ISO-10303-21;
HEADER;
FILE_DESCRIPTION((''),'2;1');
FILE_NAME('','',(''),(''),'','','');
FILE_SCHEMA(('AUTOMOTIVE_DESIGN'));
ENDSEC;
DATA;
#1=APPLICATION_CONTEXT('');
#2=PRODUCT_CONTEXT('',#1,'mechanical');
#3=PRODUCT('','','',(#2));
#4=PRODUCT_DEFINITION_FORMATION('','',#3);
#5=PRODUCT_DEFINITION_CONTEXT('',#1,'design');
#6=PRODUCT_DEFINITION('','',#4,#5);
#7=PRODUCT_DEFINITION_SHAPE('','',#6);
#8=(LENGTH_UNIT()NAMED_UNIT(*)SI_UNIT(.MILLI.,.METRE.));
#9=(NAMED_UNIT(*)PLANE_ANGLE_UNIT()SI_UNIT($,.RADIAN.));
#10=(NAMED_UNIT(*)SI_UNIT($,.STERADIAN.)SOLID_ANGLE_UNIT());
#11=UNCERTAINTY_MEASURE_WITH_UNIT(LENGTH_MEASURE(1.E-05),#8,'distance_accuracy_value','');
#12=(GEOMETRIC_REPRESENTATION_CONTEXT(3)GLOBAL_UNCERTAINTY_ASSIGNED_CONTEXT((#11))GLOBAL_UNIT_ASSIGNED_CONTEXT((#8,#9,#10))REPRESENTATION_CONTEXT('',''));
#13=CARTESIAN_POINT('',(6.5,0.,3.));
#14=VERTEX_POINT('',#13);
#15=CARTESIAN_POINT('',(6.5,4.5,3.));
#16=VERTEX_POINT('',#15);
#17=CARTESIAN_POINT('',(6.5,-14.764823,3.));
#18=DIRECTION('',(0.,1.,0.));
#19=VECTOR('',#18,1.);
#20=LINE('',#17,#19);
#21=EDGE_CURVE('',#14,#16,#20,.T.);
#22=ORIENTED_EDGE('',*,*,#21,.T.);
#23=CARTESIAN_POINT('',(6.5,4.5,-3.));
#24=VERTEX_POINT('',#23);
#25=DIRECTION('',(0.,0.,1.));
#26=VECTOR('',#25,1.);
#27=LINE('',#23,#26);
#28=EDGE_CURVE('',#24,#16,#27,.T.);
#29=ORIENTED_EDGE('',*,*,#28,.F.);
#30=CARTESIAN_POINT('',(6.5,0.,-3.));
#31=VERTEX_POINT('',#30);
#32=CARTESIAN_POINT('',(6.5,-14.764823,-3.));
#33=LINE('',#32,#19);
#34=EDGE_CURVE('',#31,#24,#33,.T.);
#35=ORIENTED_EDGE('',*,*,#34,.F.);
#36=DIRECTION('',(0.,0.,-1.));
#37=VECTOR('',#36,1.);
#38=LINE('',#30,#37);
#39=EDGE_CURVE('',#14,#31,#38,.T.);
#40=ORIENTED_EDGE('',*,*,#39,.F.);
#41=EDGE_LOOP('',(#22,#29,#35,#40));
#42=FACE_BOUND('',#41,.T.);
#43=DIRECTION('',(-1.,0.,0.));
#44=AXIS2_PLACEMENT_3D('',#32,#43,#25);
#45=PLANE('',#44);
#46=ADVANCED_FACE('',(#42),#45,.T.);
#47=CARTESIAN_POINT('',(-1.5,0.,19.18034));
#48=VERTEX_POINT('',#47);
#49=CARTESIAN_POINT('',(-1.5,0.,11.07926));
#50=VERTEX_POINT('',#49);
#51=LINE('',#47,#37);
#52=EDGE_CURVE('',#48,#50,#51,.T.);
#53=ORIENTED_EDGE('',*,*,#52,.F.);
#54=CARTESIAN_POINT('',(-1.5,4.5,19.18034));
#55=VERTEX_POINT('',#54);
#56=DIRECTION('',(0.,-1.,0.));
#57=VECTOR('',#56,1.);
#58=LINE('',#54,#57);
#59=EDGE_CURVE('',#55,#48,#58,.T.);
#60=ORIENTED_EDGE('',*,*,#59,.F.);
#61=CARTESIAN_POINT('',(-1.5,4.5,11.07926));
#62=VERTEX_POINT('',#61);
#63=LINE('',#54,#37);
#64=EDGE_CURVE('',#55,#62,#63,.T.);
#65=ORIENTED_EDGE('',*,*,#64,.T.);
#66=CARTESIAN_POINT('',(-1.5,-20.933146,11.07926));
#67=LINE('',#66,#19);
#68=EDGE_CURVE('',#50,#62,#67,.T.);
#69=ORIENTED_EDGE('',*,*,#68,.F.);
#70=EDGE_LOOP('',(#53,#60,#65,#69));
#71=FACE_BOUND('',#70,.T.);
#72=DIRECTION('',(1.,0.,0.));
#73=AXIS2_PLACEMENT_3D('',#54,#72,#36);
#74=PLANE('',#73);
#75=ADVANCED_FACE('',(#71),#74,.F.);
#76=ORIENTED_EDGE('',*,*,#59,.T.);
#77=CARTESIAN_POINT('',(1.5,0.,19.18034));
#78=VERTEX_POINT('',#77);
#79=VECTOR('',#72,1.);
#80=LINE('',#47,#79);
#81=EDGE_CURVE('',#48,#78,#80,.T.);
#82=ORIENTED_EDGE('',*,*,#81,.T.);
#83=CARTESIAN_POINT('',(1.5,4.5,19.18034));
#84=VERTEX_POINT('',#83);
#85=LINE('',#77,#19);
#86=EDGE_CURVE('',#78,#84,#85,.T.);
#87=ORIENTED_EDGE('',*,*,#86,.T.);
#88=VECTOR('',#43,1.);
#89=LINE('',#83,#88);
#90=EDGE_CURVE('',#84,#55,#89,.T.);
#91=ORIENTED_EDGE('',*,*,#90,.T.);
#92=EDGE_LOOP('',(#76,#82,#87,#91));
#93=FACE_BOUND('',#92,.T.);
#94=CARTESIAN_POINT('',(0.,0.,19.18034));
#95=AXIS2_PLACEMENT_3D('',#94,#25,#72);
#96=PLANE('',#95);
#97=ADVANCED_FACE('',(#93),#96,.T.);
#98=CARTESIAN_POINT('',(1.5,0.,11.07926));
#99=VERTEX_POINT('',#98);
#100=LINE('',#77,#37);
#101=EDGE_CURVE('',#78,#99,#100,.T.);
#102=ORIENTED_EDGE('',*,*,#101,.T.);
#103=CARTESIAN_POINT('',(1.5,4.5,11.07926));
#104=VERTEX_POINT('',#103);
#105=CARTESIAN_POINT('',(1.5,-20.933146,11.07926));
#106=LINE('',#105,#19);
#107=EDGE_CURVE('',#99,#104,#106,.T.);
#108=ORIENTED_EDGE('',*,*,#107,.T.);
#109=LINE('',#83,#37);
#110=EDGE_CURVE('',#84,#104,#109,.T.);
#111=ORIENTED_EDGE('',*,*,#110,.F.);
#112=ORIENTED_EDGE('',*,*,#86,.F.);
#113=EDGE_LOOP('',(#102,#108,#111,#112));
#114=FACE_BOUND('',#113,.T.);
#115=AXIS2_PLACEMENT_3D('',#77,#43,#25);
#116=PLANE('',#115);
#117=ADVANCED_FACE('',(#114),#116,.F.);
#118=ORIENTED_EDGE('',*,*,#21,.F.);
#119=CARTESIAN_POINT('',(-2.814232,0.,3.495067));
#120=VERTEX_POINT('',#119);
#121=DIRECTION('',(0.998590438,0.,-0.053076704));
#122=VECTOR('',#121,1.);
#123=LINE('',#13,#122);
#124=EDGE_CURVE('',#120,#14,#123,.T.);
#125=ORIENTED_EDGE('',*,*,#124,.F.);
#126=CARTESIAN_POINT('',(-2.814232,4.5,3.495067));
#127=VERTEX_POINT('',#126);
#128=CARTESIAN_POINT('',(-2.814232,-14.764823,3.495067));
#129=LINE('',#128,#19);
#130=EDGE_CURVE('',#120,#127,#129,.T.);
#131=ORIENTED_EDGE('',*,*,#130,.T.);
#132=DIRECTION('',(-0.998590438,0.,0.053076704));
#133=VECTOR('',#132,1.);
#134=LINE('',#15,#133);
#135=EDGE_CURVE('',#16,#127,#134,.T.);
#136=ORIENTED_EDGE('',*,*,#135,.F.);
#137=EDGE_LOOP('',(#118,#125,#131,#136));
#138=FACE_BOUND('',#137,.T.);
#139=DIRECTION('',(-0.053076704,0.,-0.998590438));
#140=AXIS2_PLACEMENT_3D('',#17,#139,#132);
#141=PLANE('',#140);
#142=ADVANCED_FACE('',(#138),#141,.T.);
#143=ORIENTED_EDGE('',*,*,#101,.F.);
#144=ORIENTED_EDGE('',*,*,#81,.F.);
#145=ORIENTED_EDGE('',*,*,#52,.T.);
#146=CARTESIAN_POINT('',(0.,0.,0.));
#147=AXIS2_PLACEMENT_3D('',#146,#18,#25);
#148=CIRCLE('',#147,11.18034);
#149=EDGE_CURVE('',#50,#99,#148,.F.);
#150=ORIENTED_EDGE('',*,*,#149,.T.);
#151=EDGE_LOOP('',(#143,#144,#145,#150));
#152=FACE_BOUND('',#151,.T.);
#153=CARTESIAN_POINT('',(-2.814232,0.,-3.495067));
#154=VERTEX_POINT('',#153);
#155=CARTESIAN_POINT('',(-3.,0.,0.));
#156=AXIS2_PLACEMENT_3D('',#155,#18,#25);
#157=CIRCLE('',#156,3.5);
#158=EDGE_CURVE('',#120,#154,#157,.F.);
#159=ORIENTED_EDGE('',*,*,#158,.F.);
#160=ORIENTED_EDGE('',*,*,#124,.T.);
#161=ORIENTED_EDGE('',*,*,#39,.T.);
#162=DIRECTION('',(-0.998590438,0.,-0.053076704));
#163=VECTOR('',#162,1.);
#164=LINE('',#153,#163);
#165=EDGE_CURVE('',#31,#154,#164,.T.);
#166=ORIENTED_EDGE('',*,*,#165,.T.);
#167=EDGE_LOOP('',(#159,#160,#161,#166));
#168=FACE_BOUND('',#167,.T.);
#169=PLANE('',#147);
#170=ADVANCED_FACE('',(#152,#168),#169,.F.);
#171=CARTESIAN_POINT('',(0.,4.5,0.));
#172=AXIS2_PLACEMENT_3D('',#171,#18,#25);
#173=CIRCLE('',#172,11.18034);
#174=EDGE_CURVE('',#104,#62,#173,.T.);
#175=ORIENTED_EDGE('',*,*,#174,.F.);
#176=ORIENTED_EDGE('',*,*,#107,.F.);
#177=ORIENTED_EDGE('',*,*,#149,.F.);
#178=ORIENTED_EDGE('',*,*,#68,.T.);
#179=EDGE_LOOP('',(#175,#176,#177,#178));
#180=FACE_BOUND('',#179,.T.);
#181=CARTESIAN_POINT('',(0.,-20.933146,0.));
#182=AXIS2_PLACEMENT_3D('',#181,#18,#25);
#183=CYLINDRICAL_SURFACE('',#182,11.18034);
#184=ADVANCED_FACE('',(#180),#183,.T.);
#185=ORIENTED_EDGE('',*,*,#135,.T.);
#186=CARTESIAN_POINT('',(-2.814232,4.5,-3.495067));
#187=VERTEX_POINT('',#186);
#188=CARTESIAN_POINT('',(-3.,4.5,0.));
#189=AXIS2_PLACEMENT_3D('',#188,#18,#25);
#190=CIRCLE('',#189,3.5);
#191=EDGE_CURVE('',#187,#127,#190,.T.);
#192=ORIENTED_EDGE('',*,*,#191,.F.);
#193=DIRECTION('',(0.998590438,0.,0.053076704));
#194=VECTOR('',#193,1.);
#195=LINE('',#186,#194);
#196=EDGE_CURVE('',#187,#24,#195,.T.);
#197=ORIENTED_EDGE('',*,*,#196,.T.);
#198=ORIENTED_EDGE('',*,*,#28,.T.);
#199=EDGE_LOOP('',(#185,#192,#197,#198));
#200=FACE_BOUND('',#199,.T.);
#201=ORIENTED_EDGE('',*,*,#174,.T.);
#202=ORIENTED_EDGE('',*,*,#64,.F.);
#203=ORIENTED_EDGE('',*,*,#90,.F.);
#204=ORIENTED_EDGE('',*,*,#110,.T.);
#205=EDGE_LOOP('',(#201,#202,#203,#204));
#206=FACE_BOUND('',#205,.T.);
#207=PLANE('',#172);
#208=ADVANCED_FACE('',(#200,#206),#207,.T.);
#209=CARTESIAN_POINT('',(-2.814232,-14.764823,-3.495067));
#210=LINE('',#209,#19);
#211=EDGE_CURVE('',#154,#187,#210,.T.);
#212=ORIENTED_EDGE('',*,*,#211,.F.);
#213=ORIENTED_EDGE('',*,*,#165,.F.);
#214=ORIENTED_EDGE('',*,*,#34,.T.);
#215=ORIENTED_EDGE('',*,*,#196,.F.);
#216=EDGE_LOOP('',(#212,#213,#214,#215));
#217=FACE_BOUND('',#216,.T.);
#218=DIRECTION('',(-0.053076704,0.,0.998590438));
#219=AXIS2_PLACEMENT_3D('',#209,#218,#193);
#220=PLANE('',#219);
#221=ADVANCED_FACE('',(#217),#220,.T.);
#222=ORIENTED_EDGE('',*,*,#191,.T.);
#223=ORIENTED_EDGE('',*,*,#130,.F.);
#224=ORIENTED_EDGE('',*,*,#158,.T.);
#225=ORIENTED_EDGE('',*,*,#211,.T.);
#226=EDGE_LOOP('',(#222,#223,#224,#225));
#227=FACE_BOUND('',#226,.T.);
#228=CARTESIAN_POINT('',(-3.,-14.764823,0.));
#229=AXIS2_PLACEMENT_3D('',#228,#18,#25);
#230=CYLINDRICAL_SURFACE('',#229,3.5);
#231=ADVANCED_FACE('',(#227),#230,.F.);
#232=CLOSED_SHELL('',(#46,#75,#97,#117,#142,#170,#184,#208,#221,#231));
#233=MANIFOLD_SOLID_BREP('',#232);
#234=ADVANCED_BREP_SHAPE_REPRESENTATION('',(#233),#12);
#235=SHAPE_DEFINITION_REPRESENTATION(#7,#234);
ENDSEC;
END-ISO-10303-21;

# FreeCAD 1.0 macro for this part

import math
import FreeCAD as App
import Part
import Sketcher
from FreeCAD import Vector

doc = App.newDocument("Part")
body = doc.addObject("PartDesign::Body", "Body")

# Sketch on XZ plane
sketch1 = body.newObject("Sketcher::SketchObject", "Sketch")
sketch1.AttachmentSupport = (doc.getObject("XZ_Plane"), [""])
sketch1.MapMode = "FlatFace"
sketch1.addGeometry(Part.LineSegment(Vector(-10, -5, 0), Vector(-10, 5, 0)), False)
sketch1.addGeometry(Part.LineSegment(Vector(-10, 5, 0), Vector(10, 5, 0)), False)
sketch1.addGeometry(Part.LineSegment(Vector(10, 5, 0), Vector(10, -5, 0)), False)
sketch1.addGeometry(Part.LineSegment(Vector(10, -5, 0), Vector(-10, -5, 0)), False)
sketch1.addConstraint(Sketcher.Constraint("Coincident", 0, 2, 1, 1))
sketch1.addConstraint(Sketcher.Constraint("Coincident", 1, 2, 2, 1))
sketch1.addConstraint(Sketcher.Constraint("Coincident", 2, 2, 3, 1))
sketch1.addConstraint(Sketcher.Constraint("Coincident", 3, 2, 0, 1))
sketch1.addConstraint(Sketcher.Constraint("Vertical", 0))
sketch1.addConstraint(Sketcher.Constraint("Horizontal", 1))
sketch1.addConstraint(Sketcher.Constraint("Vertical", 2))
sketch1.addConstraint(Sketcher.Constraint("Horizontal", 3))
sketch1.addConstraint(Sketcher.Constraint("Symmetric", 0, 2, 2, 2, -1, 1))
sketch1.addConstraint(Sketcher.Constraint("DistanceX", 1, 1, 1, 2, 20.0))
sketch1.addConstraint(Sketcher.Constraint("DistanceY", 0, 1, 0, 2, 10.0))
pad1 = body.newObject("PartDesign::Pad", "Pad")
pad1.Profile = sketch1
pad1.Length = 4.5
pad1.Reversed = True

# Sketch on XZ plane
sketch2 = body.newObject("Sketcher::SketchObject", "Sketch001")
sketch2.AttachmentSupport = (doc.getObject("XZ_Plane"), [""])
sketch2.MapMode = "FlatFace"
sketch2.AttachmentOffset = App.Placement(Vector(0, 0, -4.5), App.Rotation())
sketch2.addGeometry(Part.LineSegment(Vector(6.5, -3, 0), Vector(-2.814232, -3.495067, 0)), False)
sketch2.addGeometry(Part.ArcOfCircle(Part.Circle(Vector(-3, 0, 0), Vector(0, 0, 1), 3.5), math.radians(86.957499), math.radians(273.042501)), False)
sketch2.addGeometry(Part.LineSegment(Vector(-2.814232, 3.495067, 0), Vector(6.5, 3, 0)), False)
sketch2.addGeometry(Part.LineSegment(Vector(6.5, 3, 0), Vector(6.5, -3, 0)), False)
sketch2.addConstraint(Sketcher.Constraint("Tangent", 0, 2, 1, 2))
sketch2.addConstraint(Sketcher.Constraint("Tangent", 1, 1, 2, 1))
sketch2.addConstraint(Sketcher.Constraint("Coincident", 2, 2, 3, 1))
sketch2.addConstraint(Sketcher.Constraint("Coincident", 3, 2, 0, 1))
sketch2.addConstraint(Sketcher.Constraint("Vertical", 3))
sketch2.addConstraint(Sketcher.Constraint("Symmetric", 0, 2, 1, 1, -1))
sketch2.addConstraint(Sketcher.Constraint("Radius", 1, 3.5))
sketch2.addConstraint(Sketcher.Constraint("DistanceY", 3, 2, 3, 1, 6.0))
sketch2.addConstraint(Sketcher.Constraint("DistanceX", 1, 3, -1, 1, 3.0))
sketch2.addConstraint(Sketcher.Constraint("DistanceX", -1, 1, 2, 2, 6.5))
pocket1 = body.newObject("PartDesign::Pocket", "Pocket")
pocket1.Profile = sketch2
pocket1.Length = 4.5
pocket1.Reversed = True

# Sketch on XZ plane
sketch3 = body.newObject("Sketcher::SketchObject", "Sketch002")
sketch3.AttachmentSupport = (doc.getObject("XZ_Plane"), [""])
sketch3.MapMode = "FlatFace"
sketch3.AttachmentOffset = App.Placement(Vector(0, 0, -4.5), App.Rotation())
sketch3.addGeometry(Part.ArcOfCircle(Part.Circle(Vector(0, 0, 0), Vector(0, 0, 1), 11.18034), math.radians(-153.434949), math.radians(-26.565051)), False)
sketch3.addGeometry(Part.LineSegment(Vector(-10, -5, 0), Vector(10, -5, 0)), False)
sketch3.addGeometry(Part.LineSegment(Vector(-10, 5, 0), Vector(-10, -5, 0)), False)
sketch3.addGeometry(Part.ArcOfCircle(Part.Circle(Vector(0, 0, 0), Vector(0, 0, 1), 11.18034), math.radians(153.434949), math.radians(206.565051)), False)
sketch3.addGeometry(Part.LineSegment(Vector(10, 5, 0), Vector(-10, 5, 0)), False)
sketch3.addGeometry(Part.ArcOfCircle(Part.Circle(Vector(0, 0, 0), Vector(0, 0, 1), 11.18034), math.radians(26.565051), math.radians(153.434949)), False)
sketch3.addGeometry(Part.LineSegment(Vector(10, -5, 0), Vector(10, 5, 0)), False)
sketch3.addGeometry(Part.ArcOfCircle(Part.Circle(Vector(0, 0, 0), Vector(0, 0, 1), 11.18034), math.radians(-26.565051), math.radians(26.565051)), False)
sketch3.addConstraint(Sketcher.Constraint("Coincident", 0, 1, 1, 1))
sketch3.addConstraint(Sketcher.Constraint("Coincident", 1, 2, 0, 2))
sketch3.addConstraint(Sketcher.Constraint("Coincident", 2, 1, 3, 1))
sketch3.addConstraint(Sketcher.Constraint("Coincident", 3, 2, 2, 2))
sketch3.addConstraint(Sketcher.Constraint("Coincident", 4, 1, 5, 1))
sketch3.addConstraint(Sketcher.Constraint("Coincident", 5, 2, 4, 2))
sketch3.addConstraint(Sketcher.Constraint("Coincident", 6, 1, 7, 1))
sketch3.addConstraint(Sketcher.Constraint("Coincident", 7, 2, 6, 2))
sketch3.addConstraint(Sketcher.Constraint("Horizontal", 1))
sketch3.addConstraint(Sketcher.Constraint("Vertical", 2))
sketch3.addConstraint(Sketcher.Constraint("Horizontal", 4))
sketch3.addConstraint(Sketcher.Constraint("Vertical", 6))
sketch3.addConstraint(Sketcher.Constraint("Coincident", 0, 3, -1, 1))
sketch3.addConstraint(Sketcher.Constraint("Coincident", 3, 3, -1, 1))
sketch3.addConstraint(Sketcher.Constraint("Coincident", 5, 3, -1, 1))
sketch3.addConstraint(Sketcher.Constraint("Coincident", 7, 3, -1, 1))
sketch3.addConstraint(Sketcher.Constraint("Coincident", 3, 2, 0, 1))
sketch3.addConstraint(Sketcher.Constraint("Coincident", 5, 2, 2, 1))
sketch3.addConstraint(Sketcher.Constraint("Coincident", 6, 1, 1, 2))
sketch3.addConstraint(Sketcher.Constraint("DistanceX", 1, 1, 1, 2, 20.0))
sketch3.addConstraint(Sketcher.Constraint("DistanceY", 2, 2, 2, 1, 10.0))
pad2 = body.newObject("PartDesign::Pad", "Pad001")
pad2.Profile = sketch3
pad2.Length = 4.5

# Sketch on XZ plane
sketch4 = body.newObject("Sketcher::SketchObject", "Sketch003")
sketch4.AttachmentSupport = (doc.getObject("XZ_Plane"), [""])
sketch4.MapMode = "FlatFace"
sketch4.AttachmentOffset = App.Placement(Vector(0, 0, -4.5), App.Rotation())
sketch4.addGeometry(Part.LineSegment(Vector(-1.5, 8.18034, 0), Vector(-1.5, 11.18034, 0)), False)
sketch4.addGeometry(Part.LineSegment(Vector(-1.5, 11.18034, 0), Vector(1.5, 11.18034, 0)), False)
sketch4.addGeometry(Part.LineSegment(Vector(1.5, 11.18034, 0), Vector(1.5, 8.18034, 0)), False)
sketch4.addGeometry(Part.LineSegment(Vector(1.5, 8.18034, 0), Vector(-1.5, 8.18034, 0)), False)
sketch4.addConstraint(Sketcher.Constraint("Coincident", 0, 2, 1, 1))
sketch4.addConstraint(Sketcher.Constraint("Coincident", 1, 2, 2, 1))
sketch4.addConstraint(Sketcher.Constraint("Coincident", 2, 2, 3, 1))
sketch4.addConstraint(Sketcher.Constraint("Coincident", 3, 2, 0, 1))
sketch4.addConstraint(Sketcher.Constraint("Vertical", 0))
sketch4.addConstraint(Sketcher.Constraint("Horizontal", 1))
sketch4.addConstraint(Sketcher.Constraint("Vertical", 2))
sketch4.addConstraint(Sketcher.Constraint("Horizontal", 3))
sketch4.addConstraint(Sketcher.Constraint("Equal", 3, 0))
sketch4.addConstraint(Sketcher.Constraint("DistanceX", 1, 1, 1, 2, 3.0))
sketch4.addConstraint(Sketcher.Constraint("DistanceX", 0, 2, -1, 1, 1.5))
sketch4.addConstraint(Sketcher.Constraint("DistanceY", -1, 1, 0, 2, 11.18034))
pocket2 = body.newObject("PartDesign::Pocket", "Pocket001")
pocket2.Profile = sketch4
pocket2.Length = 4.5
pocket2.Reversed = True

# Sketch on XY plane
sketch5 = body.newObject("Sketcher::SketchObject", "Sketch004")
sketch5.AttachmentSupport = (doc.getObject("XY_Plane"), [""])
sketch5.MapMode = "FlatFace"
sketch5.AttachmentOffset = App.Placement(Vector(0, 0, 8.18034), App.Rotation())
sketch5.addGeometry(Part.LineSegment(Vector(-1.5, 4.5, 0), Vector(-1.5, 0, 0)), False)
sketch5.addGeometry(Part.LineSegment(Vector(-1.5, 0, 0), Vector(1.5, 0, 0)), False)
sketch5.addGeometry(Part.LineSegment(Vector(1.5, 0, 0), Vector(1.5, 4.5, 0)), False)
sketch5.addGeometry(Part.LineSegment(Vector(1.5, 4.5, 0), Vector(-1.5, 4.5, 0)), False)
sketch5.addConstraint(Sketcher.Constraint("Coincident", 0, 2, 1, 1))
sketch5.addConstraint(Sketcher.Constraint("Coincident", 1, 2, 2, 1))
sketch5.addConstraint(Sketcher.Constraint("Coincident", 2, 2, 3, 1))
sketch5.addConstraint(Sketcher.Constraint("Coincident", 3, 2, 0, 1))
sketch5.addConstraint(Sketcher.Constraint("Vertical", 0))
sketch5.addConstraint(Sketcher.Constraint("Horizontal", 1))
sketch5.addConstraint(Sketcher.Constraint("Vertical", 2))
sketch5.addConstraint(Sketcher.Constraint("Horizontal", 3))
sketch5.addConstraint(Sketcher.Constraint("Symmetric", 0, 2, 1, 2, -1, 1))
sketch5.addConstraint(Sketcher.Constraint("DistanceX", 1, 1, 1, 2, 3.0))
sketch5.addConstraint(Sketcher.Constraint("DistanceY", 0, 2, 0, 1, 4.5))
pad3 = body.newObject("PartDesign::Pad", "Pad002")
pad3.Profile = sketch5
pad3.Length = 11

doc.recompute()
